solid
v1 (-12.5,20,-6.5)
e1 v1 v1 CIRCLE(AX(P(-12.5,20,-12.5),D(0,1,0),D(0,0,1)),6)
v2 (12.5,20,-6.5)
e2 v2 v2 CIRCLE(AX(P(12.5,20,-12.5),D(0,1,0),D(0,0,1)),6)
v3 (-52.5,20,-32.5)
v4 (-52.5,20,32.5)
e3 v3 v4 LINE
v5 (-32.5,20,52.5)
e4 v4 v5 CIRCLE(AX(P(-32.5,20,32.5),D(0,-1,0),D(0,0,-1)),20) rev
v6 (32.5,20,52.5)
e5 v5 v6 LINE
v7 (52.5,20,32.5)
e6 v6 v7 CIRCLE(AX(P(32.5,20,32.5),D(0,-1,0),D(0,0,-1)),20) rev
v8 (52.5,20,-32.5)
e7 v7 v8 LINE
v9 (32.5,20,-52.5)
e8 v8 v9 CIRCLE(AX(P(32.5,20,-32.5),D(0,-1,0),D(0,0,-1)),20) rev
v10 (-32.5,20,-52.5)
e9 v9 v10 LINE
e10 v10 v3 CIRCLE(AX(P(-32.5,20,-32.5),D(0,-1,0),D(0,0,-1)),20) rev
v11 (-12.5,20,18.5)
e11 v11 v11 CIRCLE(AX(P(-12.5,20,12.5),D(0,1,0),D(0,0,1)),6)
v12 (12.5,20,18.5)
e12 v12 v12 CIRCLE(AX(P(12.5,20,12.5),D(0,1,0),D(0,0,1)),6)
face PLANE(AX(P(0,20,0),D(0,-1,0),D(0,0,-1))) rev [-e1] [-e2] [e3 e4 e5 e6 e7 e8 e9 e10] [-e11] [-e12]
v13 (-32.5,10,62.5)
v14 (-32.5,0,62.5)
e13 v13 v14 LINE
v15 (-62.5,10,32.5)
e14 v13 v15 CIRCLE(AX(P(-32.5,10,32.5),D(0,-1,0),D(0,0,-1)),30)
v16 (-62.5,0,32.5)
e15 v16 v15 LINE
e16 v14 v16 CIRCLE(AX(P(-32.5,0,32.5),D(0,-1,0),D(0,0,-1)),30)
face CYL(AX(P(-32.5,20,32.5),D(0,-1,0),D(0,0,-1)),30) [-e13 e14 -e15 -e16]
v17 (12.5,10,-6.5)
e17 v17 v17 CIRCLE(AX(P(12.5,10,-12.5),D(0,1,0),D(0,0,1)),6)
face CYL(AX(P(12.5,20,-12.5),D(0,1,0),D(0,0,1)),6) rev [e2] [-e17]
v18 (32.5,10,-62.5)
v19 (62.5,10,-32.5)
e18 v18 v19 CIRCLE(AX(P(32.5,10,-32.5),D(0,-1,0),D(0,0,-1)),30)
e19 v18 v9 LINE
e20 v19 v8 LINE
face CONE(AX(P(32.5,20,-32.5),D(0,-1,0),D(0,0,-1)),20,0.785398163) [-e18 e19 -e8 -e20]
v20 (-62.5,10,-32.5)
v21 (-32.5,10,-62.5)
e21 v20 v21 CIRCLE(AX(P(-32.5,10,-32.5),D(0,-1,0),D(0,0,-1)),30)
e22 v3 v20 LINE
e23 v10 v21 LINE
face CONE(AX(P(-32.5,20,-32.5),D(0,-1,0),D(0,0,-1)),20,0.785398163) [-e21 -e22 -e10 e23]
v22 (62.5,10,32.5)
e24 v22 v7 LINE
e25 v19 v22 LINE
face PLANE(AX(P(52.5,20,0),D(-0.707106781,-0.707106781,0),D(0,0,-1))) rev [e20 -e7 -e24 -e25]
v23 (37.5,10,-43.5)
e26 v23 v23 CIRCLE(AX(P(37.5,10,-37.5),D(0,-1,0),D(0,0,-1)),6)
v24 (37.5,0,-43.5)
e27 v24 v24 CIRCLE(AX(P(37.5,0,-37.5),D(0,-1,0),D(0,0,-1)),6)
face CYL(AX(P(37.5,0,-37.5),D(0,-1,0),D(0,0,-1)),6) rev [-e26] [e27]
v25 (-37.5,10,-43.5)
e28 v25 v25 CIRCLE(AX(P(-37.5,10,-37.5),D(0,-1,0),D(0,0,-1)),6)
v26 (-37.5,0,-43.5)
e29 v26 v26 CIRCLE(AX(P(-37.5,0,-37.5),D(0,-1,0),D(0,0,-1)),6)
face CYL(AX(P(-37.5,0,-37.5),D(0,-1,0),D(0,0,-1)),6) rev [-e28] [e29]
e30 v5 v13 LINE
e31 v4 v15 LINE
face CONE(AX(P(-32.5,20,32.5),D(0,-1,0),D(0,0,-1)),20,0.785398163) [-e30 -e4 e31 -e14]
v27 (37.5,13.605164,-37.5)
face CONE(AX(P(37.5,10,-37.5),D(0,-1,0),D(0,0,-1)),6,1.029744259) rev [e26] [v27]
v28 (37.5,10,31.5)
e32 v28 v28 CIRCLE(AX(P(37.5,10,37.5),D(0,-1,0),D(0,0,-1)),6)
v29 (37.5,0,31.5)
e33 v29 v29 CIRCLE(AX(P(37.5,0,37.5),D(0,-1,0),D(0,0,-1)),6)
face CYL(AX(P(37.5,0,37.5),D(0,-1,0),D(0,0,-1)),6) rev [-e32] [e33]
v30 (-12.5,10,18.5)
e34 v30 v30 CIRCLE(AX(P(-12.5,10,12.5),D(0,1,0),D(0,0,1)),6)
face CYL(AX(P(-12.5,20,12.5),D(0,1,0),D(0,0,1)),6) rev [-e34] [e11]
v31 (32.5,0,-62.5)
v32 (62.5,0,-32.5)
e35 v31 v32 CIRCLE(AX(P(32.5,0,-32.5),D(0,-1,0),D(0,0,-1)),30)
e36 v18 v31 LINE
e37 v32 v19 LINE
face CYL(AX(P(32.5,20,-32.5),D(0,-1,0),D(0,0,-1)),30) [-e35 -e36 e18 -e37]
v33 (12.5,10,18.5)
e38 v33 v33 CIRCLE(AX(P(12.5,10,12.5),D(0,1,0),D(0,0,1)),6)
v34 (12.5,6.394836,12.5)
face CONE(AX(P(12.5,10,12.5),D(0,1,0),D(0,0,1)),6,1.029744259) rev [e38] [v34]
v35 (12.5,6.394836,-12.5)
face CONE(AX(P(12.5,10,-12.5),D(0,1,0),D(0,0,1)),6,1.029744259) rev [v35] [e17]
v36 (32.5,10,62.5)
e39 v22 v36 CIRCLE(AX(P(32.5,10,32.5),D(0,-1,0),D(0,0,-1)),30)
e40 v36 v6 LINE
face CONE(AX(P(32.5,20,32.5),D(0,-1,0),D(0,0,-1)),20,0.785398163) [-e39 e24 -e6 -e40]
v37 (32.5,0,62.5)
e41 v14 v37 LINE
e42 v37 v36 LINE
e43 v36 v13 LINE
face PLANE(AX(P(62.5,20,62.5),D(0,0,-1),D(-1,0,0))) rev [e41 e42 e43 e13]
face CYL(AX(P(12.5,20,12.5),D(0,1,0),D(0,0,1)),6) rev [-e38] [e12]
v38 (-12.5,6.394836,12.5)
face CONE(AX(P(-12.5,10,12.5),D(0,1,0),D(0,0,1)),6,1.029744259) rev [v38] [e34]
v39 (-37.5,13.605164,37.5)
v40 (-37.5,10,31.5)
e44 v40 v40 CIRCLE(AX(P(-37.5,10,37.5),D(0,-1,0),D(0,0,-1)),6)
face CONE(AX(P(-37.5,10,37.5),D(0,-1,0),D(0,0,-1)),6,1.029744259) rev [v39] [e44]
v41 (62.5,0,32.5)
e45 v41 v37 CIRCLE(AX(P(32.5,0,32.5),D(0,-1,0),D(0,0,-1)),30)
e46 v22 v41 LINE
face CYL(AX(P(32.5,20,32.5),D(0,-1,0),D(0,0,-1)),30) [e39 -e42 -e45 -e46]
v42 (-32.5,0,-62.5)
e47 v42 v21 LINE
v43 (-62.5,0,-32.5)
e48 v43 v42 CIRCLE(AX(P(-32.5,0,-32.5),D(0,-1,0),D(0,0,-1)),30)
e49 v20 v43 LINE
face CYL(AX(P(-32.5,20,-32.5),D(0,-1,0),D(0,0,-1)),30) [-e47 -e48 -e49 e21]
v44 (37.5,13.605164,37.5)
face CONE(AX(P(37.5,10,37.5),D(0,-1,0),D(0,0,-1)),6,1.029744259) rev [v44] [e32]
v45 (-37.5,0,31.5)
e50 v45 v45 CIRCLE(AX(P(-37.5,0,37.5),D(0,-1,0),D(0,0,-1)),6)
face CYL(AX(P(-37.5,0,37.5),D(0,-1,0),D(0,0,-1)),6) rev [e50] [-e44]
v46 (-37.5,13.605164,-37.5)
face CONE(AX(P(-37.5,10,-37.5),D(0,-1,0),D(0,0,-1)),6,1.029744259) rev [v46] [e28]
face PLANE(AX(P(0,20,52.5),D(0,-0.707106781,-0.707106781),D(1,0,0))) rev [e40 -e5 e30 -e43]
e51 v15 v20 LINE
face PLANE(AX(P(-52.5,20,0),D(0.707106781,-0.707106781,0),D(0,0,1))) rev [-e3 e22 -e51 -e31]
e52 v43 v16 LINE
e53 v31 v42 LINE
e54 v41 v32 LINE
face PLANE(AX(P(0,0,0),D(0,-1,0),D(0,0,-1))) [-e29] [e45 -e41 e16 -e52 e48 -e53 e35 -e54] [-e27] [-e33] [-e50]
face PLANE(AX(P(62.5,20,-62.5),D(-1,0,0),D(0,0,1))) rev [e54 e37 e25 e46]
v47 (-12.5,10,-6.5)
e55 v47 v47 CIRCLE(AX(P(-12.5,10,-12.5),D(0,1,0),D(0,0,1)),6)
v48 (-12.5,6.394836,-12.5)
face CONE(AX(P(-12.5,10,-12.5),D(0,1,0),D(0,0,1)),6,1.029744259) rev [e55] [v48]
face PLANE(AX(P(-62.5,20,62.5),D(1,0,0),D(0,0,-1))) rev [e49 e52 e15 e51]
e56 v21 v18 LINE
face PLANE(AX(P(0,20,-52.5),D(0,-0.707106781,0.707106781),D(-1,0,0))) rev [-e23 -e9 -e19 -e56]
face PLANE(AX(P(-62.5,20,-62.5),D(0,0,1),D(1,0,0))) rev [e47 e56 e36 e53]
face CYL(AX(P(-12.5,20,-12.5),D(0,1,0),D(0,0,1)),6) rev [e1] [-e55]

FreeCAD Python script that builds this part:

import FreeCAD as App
import Part
import Sketcher

V = App.Vector


def edges_at(feature, points):
    """Names of the edges that pass closest to the given points."""
    edges = feature.Shape.Edges
    near = lambda p: min(range(len(edges)), key=lambda i: edges[i].distToShape(Part.Vertex(*p))[0])
    return sorted({f"Edge{near(p) + 1}" for p in points})


def add_polygon(sketch, points):
    """Adds a closed chain of lines whose ends are joined by coincident constraints."""
    first, n = sketch.GeometryCount, len(points)
    for a, b in zip(points, points[1:] + points[:1]):
        sketch.addGeometry(Part.LineSegment(App.Vector(*a, 0), App.Vector(*b, 0)), False)
    for i in range(n):
        sketch.addConstraint(Sketcher.Constraint("Coincident", first + i, 2, first + (i + 1) % n, 1))

doc = App.newDocument("Part")
body = doc.addObject("PartDesign::Body", "Body")

# Sketch on XZ plane
sketch1 = body.newObject("Sketcher::SketchObject", "Sketch")
sketch1.AttachmentSupport = (doc.getObject("XZ_Plane"), [""])
sketch1.MapMode = "FlatFace"
add_polygon(sketch1, [(62, 62), (62, -62), (-62, -62), (-62, 62)])  # lines 0-3
sketch1.addConstraint(Sketcher.Constraint("Vertical", 0))
sketch1.addConstraint(Sketcher.Constraint("Horizontal", 1))
sketch1.addConstraint(Sketcher.Constraint("Vertical", 2))
sketch1.addConstraint(Sketcher.Constraint("Horizontal", 3))
sketch1.addConstraint(Sketcher.Constraint("Symmetric", 0, 2, 2, 2, -1, 1))
sketch1.addConstraint(Sketcher.Constraint("Equal", 3, 0))
sketch1.addConstraint(Sketcher.Constraint("DistanceX", 1, 2, 1, 1, 125.0))
pad1 = body.newObject("PartDesign::Pad", "Pad")
pad1.Profile = sketch1
pad1.Length = 20
pad1.Reversed = True
doc.recompute()

fillet = body.newObject("PartDesign::Fillet", "Fillet")
fillet.Base = (pad1, edges_at(pad1, [
    (-62.5, 10, -62.5),
    (62.5, 10, -62.5),
    (62.5, 10, 62.5),
    (-62.5, 10, 62.5),
]))
fillet.Radius = 30
doc.recompute()

chamfer = body.newObject("PartDesign::Chamfer", "Chamfer")
chamfer.Base = (fillet, edges_at(fillet, [
    (0, 20, -62.5),
    (62.5, 20, 0),
    (-62.5, 20, 0),
    (0, 20, 62.5),
    (53.713, 20, 53.713),
    (-53.713, 20, -53.713),
    (-53.713, 20, 53.713),
    (53.713, 20, -53.713),
]))
chamfer.Size = 10

# Sketch on XZ plane
sketch2 = body.newObject("Sketcher::SketchObject", "Sketch001")
sketch2.AttachmentSupport = (doc.getObject("XZ_Plane"), [""])
sketch2.MapMode = "FlatFace"
sketch2.addGeometry(Part.Circle(V(38, 38, 0), V(0, 0, 1), 6), False)
sketch2.addGeometry(Part.Circle(V(-38, 38, 0), V(0, 0, 1), 6), False)
sketch2.addGeometry(Part.Circle(V(-38, -38, 0), V(0, 0, 1), 6), False)
sketch2.addGeometry(Part.Circle(V(38, -38, 0), V(0, 0, 1), 6), False)
sketch2.addConstraint(Sketcher.Constraint("Equal", 0, 1))
sketch2.addConstraint(Sketcher.Constraint("Equal", 1, 2))
sketch2.addConstraint(Sketcher.Constraint("Equal", 2, 3))
sketch2.addConstraint(Sketcher.Constraint("Symmetric", 0, 3, 2, 3, -1, 1))
sketch2.addConstraint(Sketcher.Constraint("Symmetric", 1, 3, 3, 3, -1, 1))
sketch2.addConstraint(Sketcher.Constraint("Symmetric", 0, 3, 1, 3, -2))
sketch2.addConstraint(Sketcher.Constraint("Diameter", 0, 12.0))
sketch2.addConstraint(Sketcher.Constraint("DistanceX", 1, 3, 0, 3, 75.0))
sketch2.addConstraint(Sketcher.Constraint("DistanceY", 2, 3, 1, 3, 75.0))
doc.recompute()
hole = body.newObject("PartDesign::Hole", "Hole")
hole.Profile = sketch2
hole.ThreadType = "None"
hole.Diameter = 12
hole.DepthType = "Dimension"
hole.Depth = 10
hole.DrillPoint = "Angled"
hole.DrillPointAngle = 118

# Sketch on XZ plane
sketch3 = body.newObject("Sketcher::SketchObject", "Sketch002")
sketch3.AttachmentSupport = (doc.getObject("XZ_Plane"), [""])
sketch3.MapMode = "FlatFace"
sketch3.AttachmentOffset = App.Placement(V(0, 0, -20), App.Rotation())
sketch3.addGeometry(Part.Circle(V(12, -12, 0), V(0, 0, 1), 6), False)
sketch3.addGeometry(Part.Circle(V(12, 12, 0), V(0, 0, 1), 6), False)
sketch3.addGeometry(Part.Circle(V(-12, 12, 0), V(0, 0, 1), 6), False)
sketch3.addGeometry(Part.Circle(V(-12, -12, 0), V(0, 0, 1), 6), False)
sketch3.addConstraint(Sketcher.Constraint("Equal", 0, 1))
sketch3.addConstraint(Sketcher.Constraint("Equal", 1, 2))
sketch3.addConstraint(Sketcher.Constraint("Equal", 2, 3))
sketch3.addConstraint(Sketcher.Constraint("Symmetric", 0, 3, 2, 3, -1, 1))
sketch3.addConstraint(Sketcher.Constraint("Symmetric", 1, 3, 3, 3, -1, 1))
sketch3.addConstraint(Sketcher.Constraint("Symmetric", 1, 3, 2, 3, -2))
sketch3.addConstraint(Sketcher.Constraint("Diameter", 0, 12.0))
sketch3.addConstraint(Sketcher.Constraint("DistanceY", 0, 3, 1, 3, 25.0))
sketch3.addConstraint(Sketcher.Constraint("DistanceX", 2, 3, 1, 3, 25.0))
doc.recompute()
hole2 = body.newObject("PartDesign::Hole", "Hole001")
hole2.Profile = sketch3
hole2.ThreadType = "None"
hole2.Diameter = 12
hole2.DepthType = "Dimension"
hole2.Depth = 10
hole2.DrillPoint = "Angled"
hole2.DrillPointAngle = 118
hole2.Reversed = True

doc.recompute()
